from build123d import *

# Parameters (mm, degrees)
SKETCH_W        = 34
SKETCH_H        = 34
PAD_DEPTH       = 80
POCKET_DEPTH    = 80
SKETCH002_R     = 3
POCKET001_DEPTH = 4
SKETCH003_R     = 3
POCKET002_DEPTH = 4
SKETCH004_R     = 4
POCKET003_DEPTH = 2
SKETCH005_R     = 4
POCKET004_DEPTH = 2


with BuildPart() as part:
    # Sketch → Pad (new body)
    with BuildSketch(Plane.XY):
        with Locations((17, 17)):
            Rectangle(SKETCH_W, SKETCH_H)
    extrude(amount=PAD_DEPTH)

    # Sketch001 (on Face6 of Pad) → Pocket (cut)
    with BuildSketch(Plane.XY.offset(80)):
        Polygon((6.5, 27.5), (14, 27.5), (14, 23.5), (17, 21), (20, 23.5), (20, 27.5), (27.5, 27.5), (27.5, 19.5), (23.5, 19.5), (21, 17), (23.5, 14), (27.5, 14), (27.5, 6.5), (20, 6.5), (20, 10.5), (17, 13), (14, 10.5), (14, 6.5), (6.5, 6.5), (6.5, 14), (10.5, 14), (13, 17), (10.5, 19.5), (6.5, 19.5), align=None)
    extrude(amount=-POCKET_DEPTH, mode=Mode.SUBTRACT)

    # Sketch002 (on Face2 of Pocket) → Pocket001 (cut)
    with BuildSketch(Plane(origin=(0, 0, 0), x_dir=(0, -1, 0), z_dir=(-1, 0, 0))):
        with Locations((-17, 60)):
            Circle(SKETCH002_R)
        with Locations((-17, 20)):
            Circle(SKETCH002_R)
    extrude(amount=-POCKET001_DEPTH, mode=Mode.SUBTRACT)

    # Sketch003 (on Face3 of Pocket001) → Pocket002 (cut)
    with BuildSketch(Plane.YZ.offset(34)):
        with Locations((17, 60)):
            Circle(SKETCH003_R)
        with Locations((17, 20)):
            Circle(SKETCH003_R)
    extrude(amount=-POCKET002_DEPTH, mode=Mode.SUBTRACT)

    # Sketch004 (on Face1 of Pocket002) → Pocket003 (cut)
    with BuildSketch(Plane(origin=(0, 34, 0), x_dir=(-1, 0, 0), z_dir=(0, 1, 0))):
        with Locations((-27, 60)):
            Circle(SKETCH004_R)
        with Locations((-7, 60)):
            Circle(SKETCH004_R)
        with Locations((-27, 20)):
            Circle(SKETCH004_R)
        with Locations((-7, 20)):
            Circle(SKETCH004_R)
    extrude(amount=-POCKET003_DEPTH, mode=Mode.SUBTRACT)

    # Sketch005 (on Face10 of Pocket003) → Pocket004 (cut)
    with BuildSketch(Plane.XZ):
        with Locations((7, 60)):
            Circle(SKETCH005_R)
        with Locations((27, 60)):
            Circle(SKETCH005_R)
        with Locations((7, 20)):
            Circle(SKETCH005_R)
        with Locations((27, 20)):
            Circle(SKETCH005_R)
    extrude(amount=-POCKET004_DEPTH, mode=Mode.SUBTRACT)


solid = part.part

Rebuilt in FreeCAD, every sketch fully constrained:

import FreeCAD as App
import Part
import Sketcher

V = App.Vector
Q = App.Units.Quantity

doc = App.newDocument("Part")
body = doc.addObject("PartDesign::Body", "Body")

# Sketch on XY plane
sketch1 = body.newObject("Sketcher::SketchObject", "Sketch")
sketch1.AttachmentSupport = (doc.getObject("XY_Plane"), [""])
sketch1.MapMode = "FlatFace"
sketch1.addGeometry([
    Part.LineSegment(V(0, 34, 0), V(0, 0, 0)),
    Part.LineSegment(V(0, 0, 0), V(34, 0, 0)),
    Part.LineSegment(V(34, 0, 0), V(34, 34, 0)),
    Part.LineSegment(V(34, 34, 0), V(0, 34, 0)),
], False)
sketch1.addConstraint([
    Sketcher.Constraint("Coincident", 0, 2, 1, 1),
    Sketcher.Constraint("Coincident", 1, 2, 2, 1),
    Sketcher.Constraint("Coincident", 2, 2, 3, 1),
    Sketcher.Constraint("Coincident", 3, 2, 0, 1),
    Sketcher.Constraint("Vertical", 0),
    Sketcher.Constraint("Horizontal", 1),
    Sketcher.Constraint("Vertical", 2),
    Sketcher.Constraint("Horizontal", 3),
    Sketcher.Constraint("Coincident", 0, 2, -1, 1),
    Sketcher.Constraint("Equal", 3, 0),
    Sketcher.Constraint("DistanceX", 1, 1, 1, 2, Q("34 mm")),
])
pad1 = body.newObject("PartDesign::Pad", "Pad")
pad1.Profile = sketch1
pad1.Length = 80

# Sketch on XY plane
sketch2 = body.newObject("Sketcher::SketchObject", "Sketch001")
sketch2.AttachmentSupport = (doc.getObject("XY_Plane"), [""])
sketch2.MapMode = "FlatFace"
sketch2.AttachmentOffset = App.Placement(V(0, 0, 80), App.Rotation())
sketch2.addGeometry([
    Part.LineSegment(V(14, 27.5, 0), V(6.5, 27.5, 0)),  # 0
    Part.LineSegment(V(6.5, 27.5, 0), V(6.5, 19.5, 0)),  # 1
    Part.LineSegment(V(6.5, 19.5, 0), V(10.5, 19.5, 0)),  # 2
    Part.LineSegment(V(10.5, 19.5, 0), V(13, 17, 0)),  # 3
    Part.LineSegment(V(13, 17, 0), V(10.5, 14, 0)),  # 4
    Part.LineSegment(V(10.5, 14, 0), V(6.5, 14, 0)),  # 5
    Part.LineSegment(V(6.5, 14, 0), V(6.5, 6.5, 0)),  # 6
    Part.LineSegment(V(6.5, 6.5, 0), V(14, 6.5, 0)),  # 7
    Part.LineSegment(V(14, 6.5, 0), V(14, 10.5, 0)),  # 8
    Part.LineSegment(V(14, 10.5, 0), V(17, 13, 0)),  # 9
    Part.LineSegment(V(17, 13, 0), V(20, 10.5, 0)),  # 10
    Part.LineSegment(V(20, 10.5, 0), V(20, 6.5, 0)),  # 11
    Part.LineSegment(V(20, 6.5, 0), V(27.5, 6.5, 0)),  # 12
    Part.LineSegment(V(27.5, 6.5, 0), V(27.5, 14, 0)),  # 13
    Part.LineSegment(V(27.5, 14, 0), V(23.5, 14, 0)),  # 14
    Part.LineSegment(V(23.5, 14, 0), V(21, 17, 0)),  # 15
    Part.LineSegment(V(21, 17, 0), V(23.5, 19.5, 0)),  # 16
    Part.LineSegment(V(23.5, 19.5, 0), V(27.5, 19.5, 0)),  # 17
    Part.LineSegment(V(27.5, 19.5, 0), V(27.5, 27.5, 0)),  # 18
    Part.LineSegment(V(27.5, 27.5, 0), V(20, 27.5, 0)),  # 19
    Part.LineSegment(V(20, 27.5, 0), V(20, 23.5, 0)),  # 20
    Part.LineSegment(V(20, 23.5, 0), V(17, 21, 0)),  # 21
    Part.LineSegment(V(17, 21, 0), V(14, 23.5, 0)),  # 22
    Part.LineSegment(V(14, 23.5, 0), V(14, 27.5, 0)),  # 23
], False)
sketch2.addConstraint([
    Sketcher.Constraint("Coincident", 0, 2, 1, 1),
    Sketcher.Constraint("Coincident", 1, 2, 2, 1),
    Sketcher.Constraint("Coincident", 2, 2, 3, 1),
    Sketcher.Constraint("Coincident", 3, 2, 4, 1),
    Sketcher.Constraint("Coincident", 4, 2, 5, 1),
    Sketcher.Constraint("Coincident", 5, 2, 6, 1),
    Sketcher.Constraint("Coincident", 6, 2, 7, 1),
    Sketcher.Constraint("Coincident", 7, 2, 8, 1),
    Sketcher.Constraint("Coincident", 8, 2, 9, 1),
    Sketcher.Constraint("Coincident", 9, 2, 10, 1),
    Sketcher.Constraint("Coincident", 10, 2, 11, 1),
    Sketcher.Constraint("Coincident", 11, 2, 12, 1),
    Sketcher.Constraint("Coincident", 12, 2, 13, 1),
    Sketcher.Constraint("Coincident", 13, 2, 14, 1),
    Sketcher.Constraint("Coincident", 14, 2, 15, 1),
    Sketcher.Constraint("Coincident", 15, 2, 16, 1),
    Sketcher.Constraint("Coincident", 16, 2, 17, 1),
    Sketcher.Constraint("Coincident", 17, 2, 18, 1),
    Sketcher.Constraint("Coincident", 18, 2, 19, 1),
    Sketcher.Constraint("Coincident", 19, 2, 20, 1),
    Sketcher.Constraint("Coincident", 20, 2, 21, 1),
    Sketcher.Constraint("Coincident", 21, 2, 22, 1),
    Sketcher.Constraint("Coincident", 22, 2, 23, 1),
    Sketcher.Constraint("Coincident", 23, 2, 0, 1),
    Sketcher.Constraint("Horizontal", 0),
    Sketcher.Constraint("Vertical", 1),
    Sketcher.Constraint("Horizontal", 2),
    Sketcher.Constraint("Horizontal", 5),
    Sketcher.Constraint("Vertical", 6),
    Sketcher.Constraint("Horizontal", 7),
    Sketcher.Constraint("Vertical", 8),
    Sketcher.Constraint("Vertical", 11),
    Sketcher.Constraint("Horizontal", 12),
    Sketcher.Constraint("Vertical", 13),
    Sketcher.Constraint("Horizontal", 14),
    Sketcher.Constraint("Horizontal", 17),
    Sketcher.Constraint("Vertical", 18),
    Sketcher.Constraint("Horizontal", 19),
    Sketcher.Constraint("Vertical", 20),
    Sketcher.Constraint("Vertical", 23),
    Sketcher.Constraint("Perpendicular", 4, 10),
    Sketcher.Constraint("Perpendicular", 9, 15),
    Sketcher.Constraint("Perpendicular", 3, 16),
    Sketcher.Constraint("Perpendicular", 15, 21),
    Sketcher.Constraint("Parallel", 10, 22),
    Sketcher.Constraint("Horizontal", 8, 2, 10, 2),
    Sketcher.Constraint("Horizontal", 7, 2, 11, 2),
    Sketcher.Constraint("Horizontal", 5, 2, 13, 2),
    Sketcher.Constraint("Horizontal", 3, 2, 15, 2),
    Sketcher.Constraint("Horizontal", 2, 2, 16, 2),
    Sketcher.Constraint("Horizontal", 0, 2, 18, 2),
    Sketcher.Constraint("Horizontal", 20, 2, 22, 2),
    Sketcher.Constraint("Vertical", 2, 2, 4, 2),
    Sketcher.Constraint("Vertical", 1, 2, 5, 2),
    Sketcher.Constraint("Vertical", 14, 2, 16, 2),
    Sketcher.Constraint("Vertical", 13, 2, 17, 2),
    Sketcher.Constraint("Vertical", 11, 2, 19, 2),
    Sketcher.Constraint("Vertical", 9, 2, 21, 2),
    Sketcher.Constraint("Vertical", 8, 2, 22, 2),
    Sketcher.Constraint("Equal", 7, 12),
    Sketcher.Constraint("Equal", 5, 14),
    Sketcher.Constraint("Equal", 19, 6),
    Sketcher.Constraint("Equal", 17, 8),
    Sketcher.Constraint("Equal", 11, 20),
    Sketcher.Constraint("Equal", 4, 9),
    Sketcher.Constraint("DistanceX", 2, 1, 2, 2, Q("4 mm")),
    Sketcher.Constraint("DistanceY", 1, 2, 1, 1, Q("8 mm")),
    Sketcher.Constraint("DistanceX", 0, 2, 0, 1, Q("7.5 mm")),
    Sketcher.Constraint("DistanceX", -1, 1, 3, 2, Q("13 mm")),
    Sketcher.Constraint("DistanceY", -1, 1, 3, 2, Q("17 mm")),
    Sketcher.Constraint("DistanceY", -1, 1, 4, 2, Q("14 mm")),
    Sketcher.Constraint("DistanceX", -1, 1, 7, 2, Q("14 mm")),
])
pocket1 = body.newObject("PartDesign::Pocket", "Pocket")
pocket1.Profile = sketch2
pocket1.Length = 80

# Sketch on YZ plane
sketch3 = body.newObject("Sketcher::SketchObject", "Sketch002")
sketch3.AttachmentSupport = (doc.getObject("YZ_Plane"), [""])
sketch3.MapMode = "FlatFace"
sketch3.addGeometry([
    Part.Circle(V(17, 60, 0), V(0, 0, 1), 3),
    Part.Circle(V(17, 20, 0), V(0, 0, 1), 3),
], False)
sketch3.addConstraint([
    Sketcher.Constraint("Equal", 0, 1),
    Sketcher.Constraint("Vertical", 0, 3, 1, 3),
    Sketcher.Constraint("Diameter", 0, Q("6 mm")),
    Sketcher.Constraint("DistanceX", -1, 1, 0, 3, Q("17 mm")),
    Sketcher.Constraint("DistanceY", -1, 1, 0, 3, Q("60 mm")),
    Sketcher.Constraint("DistanceY", -1, 1, 1, 3, Q("20 mm")),
])
pocket2 = body.newObject("PartDesign::Pocket", "Pocket001")
pocket2.Profile = sketch3
pocket2.Length = 4
pocket2.Reversed = True

# Sketch on YZ plane
sketch4 = body.newObject("Sketcher::SketchObject", "Sketch003")
sketch4.AttachmentSupport = (doc.getObject("YZ_Plane"), [""])
sketch4.MapMode = "FlatFace"
sketch4.AttachmentOffset = App.Placement(V(0, 0, 34), App.Rotation())
sketch4.addGeometry([
    Part.Circle(V(17, 60, 0), V(0, 0, 1), 3),
    Part.Circle(V(17, 20, 0), V(0, 0, 1), 3),
], False)
sketch4.addConstraint([
    Sketcher.Constraint("Equal", 0, 1),
    Sketcher.Constraint("Vertical", 0, 3, 1, 3),
    Sketcher.Constraint("Diameter", 0, Q("6 mm")),
    Sketcher.Constraint("DistanceX", -1, 1, 0, 3, Q("17 mm")),
    Sketcher.Constraint("DistanceY", -1, 1, 0, 3, Q("60 mm")),
    Sketcher.Constraint("DistanceY", -1, 1, 1, 3, Q("20 mm")),
])
pocket3 = body.newObject("PartDesign::Pocket", "Pocket002")
pocket3.Profile = sketch4
pocket3.Length = 4

# Sketch on XZ plane
sketch5 = body.newObject("Sketcher::SketchObject", "Sketch004")
sketch5.AttachmentSupport = (doc.getObject("XZ_Plane"), [""])
sketch5.MapMode = "FlatFace"
sketch5.AttachmentOffset = App.Placement(V(0, 0, -34), App.Rotation())
sketch5.addGeometry([
    Part.Circle(V(27, 60, 0), V(0, 0, 1), 4),
    Part.Circle(V(7, 60, 0), V(0, 0, 1), 4),
    Part.Circle(V(27, 20, 0), V(0, 0, 1), 4),
    Part.Circle(V(7, 20, 0), V(0, 0, 1), 4),
], False)
sketch5.addConstraint([
    Sketcher.Constraint("Equal", 0, 1),
    Sketcher.Constraint("Equal", 1, 2),
    Sketcher.Constraint("Equal", 2, 3),
    Sketcher.Constraint("Horizontal", 0, 3, 1, 3),
    Sketcher.Constraint("Horizontal", 2, 3, 3, 3),
    Sketcher.Constraint("Vertical", 0, 3, 2, 3),
    Sketcher.Constraint("Vertical", 1, 3, 3, 3),
    Sketcher.Constraint("Diameter", 0, Q("8 mm")),
    Sketcher.Constraint("DistanceX", -1, 1, 0, 3, Q("27 mm")),
    Sketcher.Constraint("DistanceY", -1, 1, 0, 3, Q("60 mm")),
    Sketcher.Constraint("DistanceX", -1, 1, 1, 3, Q("7 mm")),
    Sketcher.Constraint("DistanceY", -1, 1, 2, 3, Q("20 mm")),
])
pocket4 = body.newObject("PartDesign::Pocket", "Pocket003")
pocket4.Profile = sketch5
pocket4.Length = 2
pocket4.Reversed = True

# Sketch on XZ plane
sketch6 = body.newObject("Sketcher::SketchObject", "Sketch005")
sketch6.AttachmentSupport = (doc.getObject("XZ_Plane"), [""])
sketch6.MapMode = "FlatFace"
sketch6.addGeometry([
    Part.Circle(V(7, 60, 0), V(0, 0, 1), 4),
    Part.Circle(V(27, 60, 0), V(0, 0, 1), 4),
    Part.Circle(V(7, 20, 0), V(0, 0, 1), 4),
    Part.Circle(V(27, 20, 0), V(0, 0, 1), 4),
], False)
sketch6.addConstraint([
    Sketcher.Constraint("Equal", 0, 1),
    Sketcher.Constraint("Equal", 1, 2),
    Sketcher.Constraint("Equal", 2, 3),
    Sketcher.Constraint("Horizontal", 0, 3, 1, 3),
    Sketcher.Constraint("Horizontal", 2, 3, 3, 3),
    Sketcher.Constraint("Vertical", 0, 3, 2, 3),
    Sketcher.Constraint("Vertical", 1, 3, 3, 3),
    Sketcher.Constraint("Diameter", 0, Q("8 mm")),
    Sketcher.Constraint("DistanceX", -1, 1, 0, 3, Q("7 mm")),
    Sketcher.Constraint("DistanceY", -1, 1, 0, 3, Q("60 mm")),
    Sketcher.Constraint("DistanceX", -1, 1, 1, 3, Q("27 mm")),
    Sketcher.Constraint("DistanceY", -1, 1, 2, 3, Q("20 mm")),
])
pocket5 = body.newObject("PartDesign::Pocket", "Pocket004")
pocket5.Profile = sketch6
pocket5.Length = 2

doc.recompute()
